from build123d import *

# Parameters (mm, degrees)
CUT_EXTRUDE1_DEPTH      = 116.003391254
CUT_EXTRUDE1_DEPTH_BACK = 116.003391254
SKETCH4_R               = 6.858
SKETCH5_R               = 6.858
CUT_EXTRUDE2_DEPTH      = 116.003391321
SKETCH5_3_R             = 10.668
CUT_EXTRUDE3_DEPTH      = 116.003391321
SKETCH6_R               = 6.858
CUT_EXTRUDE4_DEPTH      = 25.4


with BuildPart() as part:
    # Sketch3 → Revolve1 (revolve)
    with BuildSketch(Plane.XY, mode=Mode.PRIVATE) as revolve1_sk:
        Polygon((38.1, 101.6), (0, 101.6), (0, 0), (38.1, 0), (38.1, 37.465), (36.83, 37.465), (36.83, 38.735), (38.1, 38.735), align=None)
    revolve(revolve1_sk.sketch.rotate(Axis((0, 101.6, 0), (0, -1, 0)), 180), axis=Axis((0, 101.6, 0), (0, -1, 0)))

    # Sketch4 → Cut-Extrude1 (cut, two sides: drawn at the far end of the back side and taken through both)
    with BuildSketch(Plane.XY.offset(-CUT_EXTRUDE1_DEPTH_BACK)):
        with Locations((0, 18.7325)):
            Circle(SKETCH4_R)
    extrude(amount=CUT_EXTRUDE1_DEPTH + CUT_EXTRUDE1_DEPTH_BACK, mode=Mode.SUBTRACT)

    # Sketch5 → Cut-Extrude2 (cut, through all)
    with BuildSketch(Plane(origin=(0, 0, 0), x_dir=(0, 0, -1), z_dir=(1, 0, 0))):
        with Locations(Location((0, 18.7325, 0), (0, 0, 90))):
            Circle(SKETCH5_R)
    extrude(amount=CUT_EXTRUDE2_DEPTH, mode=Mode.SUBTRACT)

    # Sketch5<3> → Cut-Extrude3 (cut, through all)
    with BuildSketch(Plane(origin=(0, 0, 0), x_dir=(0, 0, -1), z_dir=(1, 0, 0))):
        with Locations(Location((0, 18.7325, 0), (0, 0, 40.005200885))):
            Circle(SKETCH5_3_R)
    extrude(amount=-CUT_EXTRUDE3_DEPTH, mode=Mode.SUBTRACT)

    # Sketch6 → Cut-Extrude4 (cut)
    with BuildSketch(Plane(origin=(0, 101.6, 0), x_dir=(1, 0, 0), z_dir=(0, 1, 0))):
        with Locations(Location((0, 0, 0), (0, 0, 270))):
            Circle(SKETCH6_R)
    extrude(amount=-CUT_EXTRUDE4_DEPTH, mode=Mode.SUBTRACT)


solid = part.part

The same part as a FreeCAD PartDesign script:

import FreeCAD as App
import Part
import Sketcher

V = App.Vector
Q = App.Units.Quantity

doc = App.newDocument("Part")
body = doc.addObject("PartDesign::Body", "Body")

# Sketch on XY plane
sketch1 = doc.addObject("Sketcher::SketchObject", "Sketch")
body.addObject(sketch1)
sketch1.AttachmentSupport = (doc.XY_Plane, [""])
sketch1.MapMode = "FlatFace"
sketch1.addGeometry(Part.LineSegment(V(38.1, 101.6, 0), V(0, 101.6, 0)), False)
sketch1.addGeometry(Part.LineSegment(V(0, 101.6, 0), V(0, 0, 0)), False)
sketch1.addGeometry(Part.LineSegment(V(0, 0, 0), V(38.1, 0, 0)), False)
sketch1.addGeometry(Part.LineSegment(V(38.1, 0, 0), V(38.1, 37.5, 0)), False)
sketch1.addGeometry(Part.LineSegment(V(38.1, 37.5, 0), V(36.8, 37.5, 0)), False)
sketch1.addGeometry(Part.LineSegment(V(36.8, 37.5, 0), V(36.8, 38.7, 0)), False)
sketch1.addGeometry(Part.LineSegment(V(36.8, 38.7, 0), V(38.1, 38.7, 0)), False)
sketch1.addGeometry(Part.LineSegment(V(38.1, 38.7, 0), V(38.1, 101.6, 0)), False)
sketch1.addConstraint(Sketcher.Constraint("Coincident", 0, 2, 1, 1))
sketch1.addConstraint(Sketcher.Constraint("Coincident", 1, 2, 2, 1))
sketch1.addConstraint(Sketcher.Constraint("Coincident", 2, 2, 3, 1))
sketch1.addConstraint(Sketcher.Constraint("Coincident", 3, 2, 4, 1))
sketch1.addConstraint(Sketcher.Constraint("Coincident", 4, 2, 5, 1))
sketch1.addConstraint(Sketcher.Constraint("Coincident", 5, 2, 6, 1))
sketch1.addConstraint(Sketcher.Constraint("Coincident", 6, 2, 7, 1))
sketch1.addConstraint(Sketcher.Constraint("Coincident", 7, 2, 0, 1))
sketch1.addConstraint(Sketcher.Constraint("Horizontal", 0))
sketch1.addConstraint(Sketcher.Constraint("Vertical", 1))
sketch1.addConstraint(Sketcher.Constraint("Horizontal", 2))
sketch1.addConstraint(Sketcher.Constraint("Vertical", 3))
sketch1.addConstraint(Sketcher.Constraint("Horizontal", 4))
sketch1.addConstraint(Sketcher.Constraint("Vertical", 5))
sketch1.addConstraint(Sketcher.Constraint("Horizontal", 6))
sketch1.addConstraint(Sketcher.Constraint("Vertical", 7))
sketch1.addConstraint(Sketcher.Constraint("Coincident", 1, 2, -1, 1))
sketch1.addConstraint(Sketcher.Constraint("Vertical", 3, 2, 6, 2))
sketch1.addConstraint(Sketcher.Constraint("Equal", 6, 5))
sketch1.addConstraint(Sketcher.Constraint("DistanceY", 1, 2, 1, 1, Q("4 in")))
sketch1.addConstraint(Sketcher.Constraint("DistanceX", 0, 2, 0, 1, Q("1.5 in")))
sketch1.addConstraint(Sketcher.Constraint("DistanceX", 4, 2, 4, 1, Q("0.05 in")))
sketch1.addConstraint(Sketcher.Constraint("DistanceY", 3, 1, 3, 2, Q("1.475 in")))
revolution = doc.addObject("PartDesign::Revolution", "Revolution")
body.addObject(revolution)
revolution.Profile = sketch1
revolution.ReferenceAxis = (sketch1, ["V_Axis"])
revolution.Angle = 360

# Sketch on XY plane
sketch2 = doc.addObject("Sketcher::SketchObject", "Sketch001")
body.addObject(sketch2)
sketch2.AttachmentSupport = (doc.XY_Plane, [""])
sketch2.MapMode = "FlatFace"
sketch2.addGeometry(Part.Circle(V(0, 19, 0), V(0, 0, 1), 7), False)
sketch2.addConstraint(Sketcher.Constraint("PointOnObject", 0, 3, -2))
sketch2.addConstraint(Sketcher.Constraint("Diameter", 0, Q("0.54 in")))
sketch2.addConstraint(Sketcher.Constraint("DistanceY", -1, 1, 0, 3, Q("0.7375 in")))
pocket1 = doc.addObject("PartDesign::Pocket", "Pocket")
body.addObject(pocket1)
pocket1.Profile = sketch2
pocket1.Type = "ThroughAll"
pocket1.Midplane = True

# Sketch on YZ plane
sketch3 = doc.addObject("Sketcher::SketchObject", "Sketch002")
body.addObject(sketch3)
sketch3.AttachmentSupport = (doc.YZ_Plane, [""])
sketch3.MapMode = "FlatFace"
sketch3.addGeometry(Part.Circle(V(19, 0, 0), V(0, 0, 1), 7), False)
sketch3.addConstraint(Sketcher.Constraint("PointOnObject", 0, 3, -1))
sketch3.addConstraint(Sketcher.Constraint("Diameter", 0, Q("0.54 in")))
sketch3.addConstraint(Sketcher.Constraint("DistanceX", -1, 1, 0, 3, Q("0.7375 in")))
pocket2 = doc.addObject("PartDesign::Pocket", "Pocket001")
body.addObject(pocket2)
pocket2.Profile = sketch3
pocket2.Type = "ThroughAll"
pocket2.Reversed = True

# Sketch on YZ plane
sketch4 = doc.addObject("Sketcher::SketchObject", "Sketch003")
body.addObject(sketch4)
sketch4.AttachmentSupport = (doc.YZ_Plane, [""])
sketch4.MapMode = "FlatFace"
sketch4.addGeometry(Part.Circle(V(19, 0, 0), V(0, 0, 1), 11), False)
sketch4.addConstraint(Sketcher.Constraint("PointOnObject", 0, 3, -1))
sketch4.addConstraint(Sketcher.Constraint("Diameter", 0, Q("0.84 in")))
sketch4.addConstraint(Sketcher.Constraint("DistanceX", -1, 1, 0, 3, Q("0.7375 in")))
pocket3 = doc.addObject("PartDesign::Pocket", "Pocket002")
body.addObject(pocket3)
pocket3.Profile = sketch4
pocket3.Type = "ThroughAll"

# Sketch on XZ plane
sketch5 = doc.addObject("Sketcher::SketchObject", "Sketch004")
body.addObject(sketch5)
sketch5.AttachmentSupport = (doc.XZ_Plane, [""])
sketch5.MapMode = "FlatFace"
sketch5.AttachmentOffset = App.Placement(V(0, 0, -4 * 25.4), App.Rotation())
sketch5.addGeometry(Part.Circle(V(0, 0, 0), V(0, 0, 1), 7), False)
sketch5.addConstraint(Sketcher.Constraint("Coincident", 0, 3, -1, 1))
sketch5.addConstraint(Sketcher.Constraint("Diameter", 0, Q("0.54 in")))
pocket4 = doc.addObject("PartDesign::Pocket", "Pocket003")
body.addObject(pocket4)
pocket4.Profile = sketch5
pocket4.Length = Q("1 in")
pocket4.Reversed = True

doc.recompute()
